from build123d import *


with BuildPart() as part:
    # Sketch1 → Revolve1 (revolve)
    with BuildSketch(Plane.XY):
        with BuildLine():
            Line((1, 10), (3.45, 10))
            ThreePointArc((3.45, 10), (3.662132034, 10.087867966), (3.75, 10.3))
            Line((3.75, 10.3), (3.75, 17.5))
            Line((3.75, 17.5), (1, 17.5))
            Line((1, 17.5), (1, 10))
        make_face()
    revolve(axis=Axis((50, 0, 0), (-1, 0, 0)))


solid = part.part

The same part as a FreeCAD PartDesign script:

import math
import FreeCAD as App
import Part
import Sketcher

doc = App.newDocument("Part")
body = doc.addObject("PartDesign::Body", "Body")

# Sketch on XY plane
sketch1 = doc.addObject("Sketcher::SketchObject", "Sketch")
body.addObject(sketch1)
sketch1.AttachmentSupport = (doc.XY_Plane, [""])
sketch1.MapMode = "FlatFace"
sketch1.addGeometry([
    Part.LineSegment(App.Vector(1, 10, 0), App.Vector(3.45, 10, 0)),  # 0
    Part.ArcOfCircle(Part.Circle(App.Vector(3.45, 10.3, 0), App.Vector(0, 0, 1), 0.3), math.radians(-90), math.radians(0)),  # 1
    Part.LineSegment(App.Vector(3.75, 10.3, 0), App.Vector(3.75, 17.5, 0)),  # 2
    Part.LineSegment(App.Vector(3.75, 17.5, 0), App.Vector(1, 17.5, 0)),  # 3
    Part.LineSegment(App.Vector(1, 17.5, 0), App.Vector(1, 10, 0)),  # 4
], False)
sketch1.addConstraint([
    Sketcher.Constraint("Tangent", 0, 2, 1, 1),
    Sketcher.Constraint("Tangent", 1, 2, 2, 1),
    Sketcher.Constraint("Coincident", 2, 2, 3, 1),
    Sketcher.Constraint("Coincident", 3, 2, 4, 1),
    Sketcher.Constraint("Coincident", 4, 2, 0, 1),
    Sketcher.Constraint("Horizontal", 0),
    Sketcher.Constraint("Vertical", 2),
    Sketcher.Constraint("Horizontal", 3),
    Sketcher.Constraint("Vertical", 4),
    Sketcher.Constraint("Radius", 1, 0.3),
    Sketcher.Constraint("DistanceY", 2, 1, 2, 2, 7.2),
    Sketcher.Constraint("DistanceY", -1, 1, 0, 2, 10.0),
    Sketcher.Constraint("DistanceX", -1, 1, 3, 2, 1.0),
    Sketcher.Constraint("DistanceX", 0, 1, 0, 2, 2.45),
])
revolution = doc.addObject("PartDesign::Revolution", "Revolution")
body.addObject(revolution)
revolution.Profile = sketch1
revolution.ReferenceAxis = (sketch1, ["H_Axis"])
revolution.Angle = 360

doc.recompute()
